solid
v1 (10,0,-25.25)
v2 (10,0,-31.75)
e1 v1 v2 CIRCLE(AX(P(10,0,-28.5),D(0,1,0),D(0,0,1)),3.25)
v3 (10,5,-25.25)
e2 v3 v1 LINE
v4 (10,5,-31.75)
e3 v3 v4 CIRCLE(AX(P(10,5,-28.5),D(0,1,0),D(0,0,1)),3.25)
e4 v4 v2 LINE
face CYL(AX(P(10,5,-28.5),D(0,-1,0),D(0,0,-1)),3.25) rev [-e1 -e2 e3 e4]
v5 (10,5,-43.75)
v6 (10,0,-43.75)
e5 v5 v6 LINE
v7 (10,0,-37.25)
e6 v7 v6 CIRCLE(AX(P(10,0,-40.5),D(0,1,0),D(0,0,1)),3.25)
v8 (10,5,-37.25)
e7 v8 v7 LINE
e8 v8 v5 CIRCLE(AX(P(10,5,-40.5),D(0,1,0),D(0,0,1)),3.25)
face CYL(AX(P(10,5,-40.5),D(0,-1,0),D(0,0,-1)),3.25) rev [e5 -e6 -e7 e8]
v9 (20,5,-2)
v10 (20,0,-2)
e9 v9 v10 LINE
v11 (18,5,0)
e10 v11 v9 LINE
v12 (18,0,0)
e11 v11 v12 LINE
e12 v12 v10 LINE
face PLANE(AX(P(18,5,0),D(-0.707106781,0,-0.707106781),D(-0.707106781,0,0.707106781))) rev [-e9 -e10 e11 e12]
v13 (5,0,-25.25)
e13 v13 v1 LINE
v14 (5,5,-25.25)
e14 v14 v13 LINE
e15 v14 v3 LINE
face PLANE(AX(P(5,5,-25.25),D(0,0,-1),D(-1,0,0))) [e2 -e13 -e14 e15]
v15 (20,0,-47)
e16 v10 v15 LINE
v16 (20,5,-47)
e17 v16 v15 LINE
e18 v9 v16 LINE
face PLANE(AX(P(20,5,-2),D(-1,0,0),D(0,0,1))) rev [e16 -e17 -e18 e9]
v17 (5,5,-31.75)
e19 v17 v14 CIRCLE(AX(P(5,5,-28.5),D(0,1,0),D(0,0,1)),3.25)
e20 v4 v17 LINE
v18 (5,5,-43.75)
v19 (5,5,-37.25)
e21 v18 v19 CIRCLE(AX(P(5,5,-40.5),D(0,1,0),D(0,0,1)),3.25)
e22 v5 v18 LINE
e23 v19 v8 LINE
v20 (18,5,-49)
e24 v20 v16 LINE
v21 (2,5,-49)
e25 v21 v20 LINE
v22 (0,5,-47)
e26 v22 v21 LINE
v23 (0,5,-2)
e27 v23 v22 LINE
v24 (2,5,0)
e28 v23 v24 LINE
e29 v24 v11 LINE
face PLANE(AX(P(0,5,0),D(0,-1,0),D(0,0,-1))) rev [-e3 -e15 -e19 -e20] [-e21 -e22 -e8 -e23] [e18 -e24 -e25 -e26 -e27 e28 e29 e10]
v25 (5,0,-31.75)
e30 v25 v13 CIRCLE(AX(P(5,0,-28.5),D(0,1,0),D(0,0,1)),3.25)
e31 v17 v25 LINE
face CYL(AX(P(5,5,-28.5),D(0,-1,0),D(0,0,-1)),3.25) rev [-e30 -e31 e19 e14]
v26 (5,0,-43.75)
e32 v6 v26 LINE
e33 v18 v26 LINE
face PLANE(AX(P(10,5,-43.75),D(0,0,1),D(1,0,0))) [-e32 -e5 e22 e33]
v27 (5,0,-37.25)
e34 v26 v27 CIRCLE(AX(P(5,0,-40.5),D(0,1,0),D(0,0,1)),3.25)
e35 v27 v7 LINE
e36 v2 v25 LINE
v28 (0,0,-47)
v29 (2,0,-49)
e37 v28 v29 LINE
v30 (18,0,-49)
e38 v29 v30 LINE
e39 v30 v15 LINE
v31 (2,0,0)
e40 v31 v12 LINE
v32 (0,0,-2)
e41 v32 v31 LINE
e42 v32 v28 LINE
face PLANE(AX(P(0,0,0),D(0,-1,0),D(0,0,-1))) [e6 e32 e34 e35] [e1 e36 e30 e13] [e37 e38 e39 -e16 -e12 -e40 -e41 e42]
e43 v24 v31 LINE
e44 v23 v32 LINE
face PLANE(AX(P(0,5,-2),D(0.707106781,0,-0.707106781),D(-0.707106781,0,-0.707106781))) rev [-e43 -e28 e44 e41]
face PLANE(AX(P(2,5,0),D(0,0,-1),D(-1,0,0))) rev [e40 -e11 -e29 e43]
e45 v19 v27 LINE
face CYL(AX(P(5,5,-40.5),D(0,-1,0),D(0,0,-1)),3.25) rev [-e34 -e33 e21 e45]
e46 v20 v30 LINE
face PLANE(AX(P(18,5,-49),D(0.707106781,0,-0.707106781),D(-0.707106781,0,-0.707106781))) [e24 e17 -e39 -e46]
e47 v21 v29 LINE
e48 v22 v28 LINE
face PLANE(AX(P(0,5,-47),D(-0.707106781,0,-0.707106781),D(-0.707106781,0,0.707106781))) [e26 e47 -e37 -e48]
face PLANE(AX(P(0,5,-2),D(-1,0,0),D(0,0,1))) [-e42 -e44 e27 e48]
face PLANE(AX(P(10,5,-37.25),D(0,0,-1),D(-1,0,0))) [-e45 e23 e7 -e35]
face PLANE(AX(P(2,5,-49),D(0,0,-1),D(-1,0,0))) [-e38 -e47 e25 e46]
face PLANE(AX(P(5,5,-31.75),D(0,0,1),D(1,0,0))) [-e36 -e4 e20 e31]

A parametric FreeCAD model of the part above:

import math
import FreeCAD as App
import Part
import Sketcher

V = App.Vector

doc = App.newDocument("Part")
body = doc.addObject("PartDesign::Body", "Body")

sketch1 = doc.addObject("Sketcher::SketchObject", "Sketch")
body.addObject(sketch1)
sketch1.AttachmentSupport = (doc.XZ_Plane, [""])
sketch1.MapMode = "FlatFace"
sketch1.addGeometry([
    Part.LineSegment(V(2, -49, 0), V(0, -47, 0)),
    Part.LineSegment(V(0, -47, 0), V(0, -2, 0)),
    Part.LineSegment(V(0, -2, 0), V(2, 0, 0)),
    Part.LineSegment(V(2, 0, 0), V(18, 0, 0)),
    Part.LineSegment(V(18, 0, 0), V(20, -2, 0)),
    Part.LineSegment(V(20, -2, 0), V(20, -47, 0)),
    Part.LineSegment(V(20, -47, 0), V(18, -49, 0)),
    Part.LineSegment(V(18, -49, 0), V(2, -49, 0)),
], False)
sketch1.addConstraint([
    Sketcher.Constraint("Coincident", 0, 2, 1, 1),
    Sketcher.Constraint("Coincident", 1, 2, 2, 1),
    Sketcher.Constraint("Coincident", 2, 2, 3, 1),
    Sketcher.Constraint("Coincident", 3, 2, 4, 1),
    Sketcher.Constraint("Coincident", 4, 2, 5, 1),
    Sketcher.Constraint("Coincident", 5, 2, 6, 1),
    Sketcher.Constraint("Coincident", 6, 2, 7, 1),
    Sketcher.Constraint("Coincident", 7, 2, 0, 1),
    Sketcher.Constraint("Vertical", 1),
    Sketcher.Constraint("Horizontal", 3),
    Sketcher.Constraint("Vertical", 5),
    Sketcher.Constraint("Horizontal", 7),
    Sketcher.Constraint("PointOnObject", 0, 2, -2),
    Sketcher.Constraint("PointOnObject", 2, 2, -1),
    Sketcher.Constraint("Perpendicular", 0, 2),
    Sketcher.Constraint("Perpendicular", 2, 4),
    Sketcher.Constraint("Perpendicular", 4, 6),
    Sketcher.Constraint("Horizontal", 1, 2, 4, 2),
    Sketcher.Constraint("Horizontal", 0, 2, 5, 2),
    Sketcher.Constraint("Vertical", 3, 2, 6, 2),
    Sketcher.Constraint("Vertical", 2, 2, 7, 2),
    Sketcher.Constraint("DistanceX", 3, 1, 3, 2, 16.0),
    Sketcher.Constraint("DistanceY", 1, 1, 1, 2, 45.0),
    Sketcher.Constraint("DistanceY", 0, 2, -1, 1, 47.0),
])
pad1 = doc.addObject("PartDesign::Pad", "Pad")
body.addObject(pad1)
pad1.Profile = sketch1
pad1.Length = 5
pad1.Reversed = True

sketch2 = doc.addObject("Sketcher::SketchObject", "Sketch001")
body.addObject(sketch2)
sketch2.AttachmentSupport = (doc.XZ_Plane, [""])
sketch2.MapMode = "FlatFace"
sketch2.addGeometry([
    Part.LineSegment(V(-6.3, -55.3, 0), V(-6.3, 6.3, 0)),
    Part.LineSegment(V(-6.3, 6.3, 0), V(26.3, 6.3, 0)),
    Part.LineSegment(V(26.3, 6.3, 0), V(26.3, -55.3, 0)),
    Part.LineSegment(V(26.3, -55.3, 0), V(-6.3, -55.3, 0)),
    Part.LineSegment(V(0, -2, 0), V(0, -47, 0)),
    Part.LineSegment(V(0, -47, 0), V(2, -49, 0)),
    Part.LineSegment(V(2, -49, 0), V(18, -49, 0)),
    Part.LineSegment(V(18, -49, 0), V(20, -47, 0)),
    Part.LineSegment(V(20, -47, 0), V(20, -2, 0)),
    Part.LineSegment(V(20, -2, 0), V(18, 0, 0)),
    Part.LineSegment(V(18, 0, 0), V(2, 0, 0)),
    Part.LineSegment(V(2, 0, 0), V(0, -2, 0)),
    Part.LineSegment(V(5, -37.2, 0), V(10, -37.2, 0)),
    Part.ArcOfCircle(Part.Circle(V(10, -40.5, 0), V(0, 0, 1), 3.2), math.radians(-90), math.radians(90)),
    Part.LineSegment(V(10, -43.8, 0), V(5, -43.8, 0)),
    Part.ArcOfCircle(Part.Circle(V(5, -40.5, 0), V(0, 0, 1), 3.2), math.radians(90), math.radians(270)),
    Part.LineSegment(V(10, -31.8, 0), V(5, -31.8, 0)),
    Part.ArcOfCircle(Part.Circle(V(5, -28.5, 0), V(0, 0, 1), 3.2), math.radians(90), math.radians(270)),
    Part.LineSegment(V(5, -25.2, 0), V(10, -25.2, 0)),
    Part.ArcOfCircle(Part.Circle(V(10, -28.5, 0), V(0, 0, 1), 3.2), math.radians(-90), math.radians(90)),
], False)
sketch2.addConstraint([
    Sketcher.Constraint("Coincident", 0, 2, 1, 1),
    Sketcher.Constraint("Coincident", 1, 2, 2, 1),
    Sketcher.Constraint("Coincident", 2, 2, 3, 1),
    Sketcher.Constraint("Coincident", 3, 2, 0, 1),
    Sketcher.Constraint("Coincident", 4, 2, 5, 1),
    Sketcher.Constraint("Coincident", 5, 2, 6, 1),
    Sketcher.Constraint("Coincident", 6, 2, 7, 1),
    Sketcher.Constraint("Coincident", 7, 2, 8, 1),
    Sketcher.Constraint("Coincident", 8, 2, 9, 1),
    Sketcher.Constraint("Coincident", 9, 2, 10, 1),
    Sketcher.Constraint("Coincident", 10, 2, 11, 1),
    Sketcher.Constraint("Coincident", 11, 2, 4, 1),
    Sketcher.Constraint("Tangent", 12, 2, 13, 2),
    Sketcher.Constraint("Tangent", 13, 1, 14, 1),
    Sketcher.Constraint("Tangent", 14, 2, 15, 2),
    Sketcher.Constraint("Tangent", 15, 1, 12, 1),
    Sketcher.Constraint("Tangent", 16, 2, 17, 2),
    Sketcher.Constraint("Tangent", 17, 1, 18, 1),
    Sketcher.Constraint("Tangent", 18, 2, 19, 2),
    Sketcher.Constraint("Tangent", 19, 1, 16, 1),
    Sketcher.Constraint("Vertical", 0),
    Sketcher.Constraint("Horizontal", 1),
    Sketcher.Constraint("Vertical", 2),
    Sketcher.Constraint("Horizontal", 3),
    Sketcher.Constraint("Vertical", 4),
    Sketcher.Constraint("Horizontal", 6),
    Sketcher.Constraint("Vertical", 8),
    Sketcher.Constraint("Horizontal", 10),
    Sketcher.Constraint("Horizontal", 12),
    Sketcher.Constraint("Horizontal", 14),
    Sketcher.Constraint("Horizontal", 16),
    Sketcher.Constraint("Horizontal", 18),
    Sketcher.Constraint("Equal", 15, 17),
    Sketcher.Constraint("PointOnObject", 4, 2, -2),
    Sketcher.Constraint("PointOnObject", 9, 2, -1),
    Sketcher.Constraint("Perpendicular", 5, 7),
    Sketcher.Constraint("Perpendicular", 7, 9),
    Sketcher.Constraint("Perpendicular", 9, 11),
    Sketcher.Constraint("Horizontal", 4, 2, 7, 2),
    Sketcher.Constraint("Horizontal", 8, 2, 11, 2),
    Sketcher.Constraint("Vertical", 15, 3, 17, 3),
    Sketcher.Constraint("Vertical", 13, 3, 19, 3),
    Sketcher.Constraint("Vertical", 6, 2, 9, 2),
    Sketcher.Constraint("Vertical", 5, 2, 10, 2),
    Sketcher.Constraint("DistanceX", 6, 1, 6, 2, 16.0),
    Sketcher.Constraint("DistanceX", 12, 1, 12, 2, 5.0),
    Sketcher.Constraint("DistanceY", 4, 2, 4, 1, 45.0),
    Sketcher.Constraint("Radius", 13, 3.25),
    Sketcher.Constraint("DistanceX", -1, 1, 13, 3, 10.0),
    Sketcher.Constraint("DistanceY", 4, 2, -1, 1, 47.0),
    Sketcher.Constraint("DistanceY", 15, 3, 17, 3, 12.0),
    Sketcher.Constraint("DistanceY", 13, 3, -1, 1, 40.5),
    Sketcher.Constraint("DistanceX", 1, 1, 1, 2, 32.632),
    Sketcher.Constraint("DistanceY", 0, 1, 0, 2, 61.632),
    Sketcher.Constraint("DistanceX", 0, 2, -1, 1, 6.316),
    Sketcher.Constraint("DistanceY", -1, 1, 0, 2, 6.316),
])
pocket1 = doc.addObject("PartDesign::Pocket", "Pocket")
body.addObject(pocket1)
pocket1.Profile = sketch2
pocket1.Length = 5

doc.recompute()
